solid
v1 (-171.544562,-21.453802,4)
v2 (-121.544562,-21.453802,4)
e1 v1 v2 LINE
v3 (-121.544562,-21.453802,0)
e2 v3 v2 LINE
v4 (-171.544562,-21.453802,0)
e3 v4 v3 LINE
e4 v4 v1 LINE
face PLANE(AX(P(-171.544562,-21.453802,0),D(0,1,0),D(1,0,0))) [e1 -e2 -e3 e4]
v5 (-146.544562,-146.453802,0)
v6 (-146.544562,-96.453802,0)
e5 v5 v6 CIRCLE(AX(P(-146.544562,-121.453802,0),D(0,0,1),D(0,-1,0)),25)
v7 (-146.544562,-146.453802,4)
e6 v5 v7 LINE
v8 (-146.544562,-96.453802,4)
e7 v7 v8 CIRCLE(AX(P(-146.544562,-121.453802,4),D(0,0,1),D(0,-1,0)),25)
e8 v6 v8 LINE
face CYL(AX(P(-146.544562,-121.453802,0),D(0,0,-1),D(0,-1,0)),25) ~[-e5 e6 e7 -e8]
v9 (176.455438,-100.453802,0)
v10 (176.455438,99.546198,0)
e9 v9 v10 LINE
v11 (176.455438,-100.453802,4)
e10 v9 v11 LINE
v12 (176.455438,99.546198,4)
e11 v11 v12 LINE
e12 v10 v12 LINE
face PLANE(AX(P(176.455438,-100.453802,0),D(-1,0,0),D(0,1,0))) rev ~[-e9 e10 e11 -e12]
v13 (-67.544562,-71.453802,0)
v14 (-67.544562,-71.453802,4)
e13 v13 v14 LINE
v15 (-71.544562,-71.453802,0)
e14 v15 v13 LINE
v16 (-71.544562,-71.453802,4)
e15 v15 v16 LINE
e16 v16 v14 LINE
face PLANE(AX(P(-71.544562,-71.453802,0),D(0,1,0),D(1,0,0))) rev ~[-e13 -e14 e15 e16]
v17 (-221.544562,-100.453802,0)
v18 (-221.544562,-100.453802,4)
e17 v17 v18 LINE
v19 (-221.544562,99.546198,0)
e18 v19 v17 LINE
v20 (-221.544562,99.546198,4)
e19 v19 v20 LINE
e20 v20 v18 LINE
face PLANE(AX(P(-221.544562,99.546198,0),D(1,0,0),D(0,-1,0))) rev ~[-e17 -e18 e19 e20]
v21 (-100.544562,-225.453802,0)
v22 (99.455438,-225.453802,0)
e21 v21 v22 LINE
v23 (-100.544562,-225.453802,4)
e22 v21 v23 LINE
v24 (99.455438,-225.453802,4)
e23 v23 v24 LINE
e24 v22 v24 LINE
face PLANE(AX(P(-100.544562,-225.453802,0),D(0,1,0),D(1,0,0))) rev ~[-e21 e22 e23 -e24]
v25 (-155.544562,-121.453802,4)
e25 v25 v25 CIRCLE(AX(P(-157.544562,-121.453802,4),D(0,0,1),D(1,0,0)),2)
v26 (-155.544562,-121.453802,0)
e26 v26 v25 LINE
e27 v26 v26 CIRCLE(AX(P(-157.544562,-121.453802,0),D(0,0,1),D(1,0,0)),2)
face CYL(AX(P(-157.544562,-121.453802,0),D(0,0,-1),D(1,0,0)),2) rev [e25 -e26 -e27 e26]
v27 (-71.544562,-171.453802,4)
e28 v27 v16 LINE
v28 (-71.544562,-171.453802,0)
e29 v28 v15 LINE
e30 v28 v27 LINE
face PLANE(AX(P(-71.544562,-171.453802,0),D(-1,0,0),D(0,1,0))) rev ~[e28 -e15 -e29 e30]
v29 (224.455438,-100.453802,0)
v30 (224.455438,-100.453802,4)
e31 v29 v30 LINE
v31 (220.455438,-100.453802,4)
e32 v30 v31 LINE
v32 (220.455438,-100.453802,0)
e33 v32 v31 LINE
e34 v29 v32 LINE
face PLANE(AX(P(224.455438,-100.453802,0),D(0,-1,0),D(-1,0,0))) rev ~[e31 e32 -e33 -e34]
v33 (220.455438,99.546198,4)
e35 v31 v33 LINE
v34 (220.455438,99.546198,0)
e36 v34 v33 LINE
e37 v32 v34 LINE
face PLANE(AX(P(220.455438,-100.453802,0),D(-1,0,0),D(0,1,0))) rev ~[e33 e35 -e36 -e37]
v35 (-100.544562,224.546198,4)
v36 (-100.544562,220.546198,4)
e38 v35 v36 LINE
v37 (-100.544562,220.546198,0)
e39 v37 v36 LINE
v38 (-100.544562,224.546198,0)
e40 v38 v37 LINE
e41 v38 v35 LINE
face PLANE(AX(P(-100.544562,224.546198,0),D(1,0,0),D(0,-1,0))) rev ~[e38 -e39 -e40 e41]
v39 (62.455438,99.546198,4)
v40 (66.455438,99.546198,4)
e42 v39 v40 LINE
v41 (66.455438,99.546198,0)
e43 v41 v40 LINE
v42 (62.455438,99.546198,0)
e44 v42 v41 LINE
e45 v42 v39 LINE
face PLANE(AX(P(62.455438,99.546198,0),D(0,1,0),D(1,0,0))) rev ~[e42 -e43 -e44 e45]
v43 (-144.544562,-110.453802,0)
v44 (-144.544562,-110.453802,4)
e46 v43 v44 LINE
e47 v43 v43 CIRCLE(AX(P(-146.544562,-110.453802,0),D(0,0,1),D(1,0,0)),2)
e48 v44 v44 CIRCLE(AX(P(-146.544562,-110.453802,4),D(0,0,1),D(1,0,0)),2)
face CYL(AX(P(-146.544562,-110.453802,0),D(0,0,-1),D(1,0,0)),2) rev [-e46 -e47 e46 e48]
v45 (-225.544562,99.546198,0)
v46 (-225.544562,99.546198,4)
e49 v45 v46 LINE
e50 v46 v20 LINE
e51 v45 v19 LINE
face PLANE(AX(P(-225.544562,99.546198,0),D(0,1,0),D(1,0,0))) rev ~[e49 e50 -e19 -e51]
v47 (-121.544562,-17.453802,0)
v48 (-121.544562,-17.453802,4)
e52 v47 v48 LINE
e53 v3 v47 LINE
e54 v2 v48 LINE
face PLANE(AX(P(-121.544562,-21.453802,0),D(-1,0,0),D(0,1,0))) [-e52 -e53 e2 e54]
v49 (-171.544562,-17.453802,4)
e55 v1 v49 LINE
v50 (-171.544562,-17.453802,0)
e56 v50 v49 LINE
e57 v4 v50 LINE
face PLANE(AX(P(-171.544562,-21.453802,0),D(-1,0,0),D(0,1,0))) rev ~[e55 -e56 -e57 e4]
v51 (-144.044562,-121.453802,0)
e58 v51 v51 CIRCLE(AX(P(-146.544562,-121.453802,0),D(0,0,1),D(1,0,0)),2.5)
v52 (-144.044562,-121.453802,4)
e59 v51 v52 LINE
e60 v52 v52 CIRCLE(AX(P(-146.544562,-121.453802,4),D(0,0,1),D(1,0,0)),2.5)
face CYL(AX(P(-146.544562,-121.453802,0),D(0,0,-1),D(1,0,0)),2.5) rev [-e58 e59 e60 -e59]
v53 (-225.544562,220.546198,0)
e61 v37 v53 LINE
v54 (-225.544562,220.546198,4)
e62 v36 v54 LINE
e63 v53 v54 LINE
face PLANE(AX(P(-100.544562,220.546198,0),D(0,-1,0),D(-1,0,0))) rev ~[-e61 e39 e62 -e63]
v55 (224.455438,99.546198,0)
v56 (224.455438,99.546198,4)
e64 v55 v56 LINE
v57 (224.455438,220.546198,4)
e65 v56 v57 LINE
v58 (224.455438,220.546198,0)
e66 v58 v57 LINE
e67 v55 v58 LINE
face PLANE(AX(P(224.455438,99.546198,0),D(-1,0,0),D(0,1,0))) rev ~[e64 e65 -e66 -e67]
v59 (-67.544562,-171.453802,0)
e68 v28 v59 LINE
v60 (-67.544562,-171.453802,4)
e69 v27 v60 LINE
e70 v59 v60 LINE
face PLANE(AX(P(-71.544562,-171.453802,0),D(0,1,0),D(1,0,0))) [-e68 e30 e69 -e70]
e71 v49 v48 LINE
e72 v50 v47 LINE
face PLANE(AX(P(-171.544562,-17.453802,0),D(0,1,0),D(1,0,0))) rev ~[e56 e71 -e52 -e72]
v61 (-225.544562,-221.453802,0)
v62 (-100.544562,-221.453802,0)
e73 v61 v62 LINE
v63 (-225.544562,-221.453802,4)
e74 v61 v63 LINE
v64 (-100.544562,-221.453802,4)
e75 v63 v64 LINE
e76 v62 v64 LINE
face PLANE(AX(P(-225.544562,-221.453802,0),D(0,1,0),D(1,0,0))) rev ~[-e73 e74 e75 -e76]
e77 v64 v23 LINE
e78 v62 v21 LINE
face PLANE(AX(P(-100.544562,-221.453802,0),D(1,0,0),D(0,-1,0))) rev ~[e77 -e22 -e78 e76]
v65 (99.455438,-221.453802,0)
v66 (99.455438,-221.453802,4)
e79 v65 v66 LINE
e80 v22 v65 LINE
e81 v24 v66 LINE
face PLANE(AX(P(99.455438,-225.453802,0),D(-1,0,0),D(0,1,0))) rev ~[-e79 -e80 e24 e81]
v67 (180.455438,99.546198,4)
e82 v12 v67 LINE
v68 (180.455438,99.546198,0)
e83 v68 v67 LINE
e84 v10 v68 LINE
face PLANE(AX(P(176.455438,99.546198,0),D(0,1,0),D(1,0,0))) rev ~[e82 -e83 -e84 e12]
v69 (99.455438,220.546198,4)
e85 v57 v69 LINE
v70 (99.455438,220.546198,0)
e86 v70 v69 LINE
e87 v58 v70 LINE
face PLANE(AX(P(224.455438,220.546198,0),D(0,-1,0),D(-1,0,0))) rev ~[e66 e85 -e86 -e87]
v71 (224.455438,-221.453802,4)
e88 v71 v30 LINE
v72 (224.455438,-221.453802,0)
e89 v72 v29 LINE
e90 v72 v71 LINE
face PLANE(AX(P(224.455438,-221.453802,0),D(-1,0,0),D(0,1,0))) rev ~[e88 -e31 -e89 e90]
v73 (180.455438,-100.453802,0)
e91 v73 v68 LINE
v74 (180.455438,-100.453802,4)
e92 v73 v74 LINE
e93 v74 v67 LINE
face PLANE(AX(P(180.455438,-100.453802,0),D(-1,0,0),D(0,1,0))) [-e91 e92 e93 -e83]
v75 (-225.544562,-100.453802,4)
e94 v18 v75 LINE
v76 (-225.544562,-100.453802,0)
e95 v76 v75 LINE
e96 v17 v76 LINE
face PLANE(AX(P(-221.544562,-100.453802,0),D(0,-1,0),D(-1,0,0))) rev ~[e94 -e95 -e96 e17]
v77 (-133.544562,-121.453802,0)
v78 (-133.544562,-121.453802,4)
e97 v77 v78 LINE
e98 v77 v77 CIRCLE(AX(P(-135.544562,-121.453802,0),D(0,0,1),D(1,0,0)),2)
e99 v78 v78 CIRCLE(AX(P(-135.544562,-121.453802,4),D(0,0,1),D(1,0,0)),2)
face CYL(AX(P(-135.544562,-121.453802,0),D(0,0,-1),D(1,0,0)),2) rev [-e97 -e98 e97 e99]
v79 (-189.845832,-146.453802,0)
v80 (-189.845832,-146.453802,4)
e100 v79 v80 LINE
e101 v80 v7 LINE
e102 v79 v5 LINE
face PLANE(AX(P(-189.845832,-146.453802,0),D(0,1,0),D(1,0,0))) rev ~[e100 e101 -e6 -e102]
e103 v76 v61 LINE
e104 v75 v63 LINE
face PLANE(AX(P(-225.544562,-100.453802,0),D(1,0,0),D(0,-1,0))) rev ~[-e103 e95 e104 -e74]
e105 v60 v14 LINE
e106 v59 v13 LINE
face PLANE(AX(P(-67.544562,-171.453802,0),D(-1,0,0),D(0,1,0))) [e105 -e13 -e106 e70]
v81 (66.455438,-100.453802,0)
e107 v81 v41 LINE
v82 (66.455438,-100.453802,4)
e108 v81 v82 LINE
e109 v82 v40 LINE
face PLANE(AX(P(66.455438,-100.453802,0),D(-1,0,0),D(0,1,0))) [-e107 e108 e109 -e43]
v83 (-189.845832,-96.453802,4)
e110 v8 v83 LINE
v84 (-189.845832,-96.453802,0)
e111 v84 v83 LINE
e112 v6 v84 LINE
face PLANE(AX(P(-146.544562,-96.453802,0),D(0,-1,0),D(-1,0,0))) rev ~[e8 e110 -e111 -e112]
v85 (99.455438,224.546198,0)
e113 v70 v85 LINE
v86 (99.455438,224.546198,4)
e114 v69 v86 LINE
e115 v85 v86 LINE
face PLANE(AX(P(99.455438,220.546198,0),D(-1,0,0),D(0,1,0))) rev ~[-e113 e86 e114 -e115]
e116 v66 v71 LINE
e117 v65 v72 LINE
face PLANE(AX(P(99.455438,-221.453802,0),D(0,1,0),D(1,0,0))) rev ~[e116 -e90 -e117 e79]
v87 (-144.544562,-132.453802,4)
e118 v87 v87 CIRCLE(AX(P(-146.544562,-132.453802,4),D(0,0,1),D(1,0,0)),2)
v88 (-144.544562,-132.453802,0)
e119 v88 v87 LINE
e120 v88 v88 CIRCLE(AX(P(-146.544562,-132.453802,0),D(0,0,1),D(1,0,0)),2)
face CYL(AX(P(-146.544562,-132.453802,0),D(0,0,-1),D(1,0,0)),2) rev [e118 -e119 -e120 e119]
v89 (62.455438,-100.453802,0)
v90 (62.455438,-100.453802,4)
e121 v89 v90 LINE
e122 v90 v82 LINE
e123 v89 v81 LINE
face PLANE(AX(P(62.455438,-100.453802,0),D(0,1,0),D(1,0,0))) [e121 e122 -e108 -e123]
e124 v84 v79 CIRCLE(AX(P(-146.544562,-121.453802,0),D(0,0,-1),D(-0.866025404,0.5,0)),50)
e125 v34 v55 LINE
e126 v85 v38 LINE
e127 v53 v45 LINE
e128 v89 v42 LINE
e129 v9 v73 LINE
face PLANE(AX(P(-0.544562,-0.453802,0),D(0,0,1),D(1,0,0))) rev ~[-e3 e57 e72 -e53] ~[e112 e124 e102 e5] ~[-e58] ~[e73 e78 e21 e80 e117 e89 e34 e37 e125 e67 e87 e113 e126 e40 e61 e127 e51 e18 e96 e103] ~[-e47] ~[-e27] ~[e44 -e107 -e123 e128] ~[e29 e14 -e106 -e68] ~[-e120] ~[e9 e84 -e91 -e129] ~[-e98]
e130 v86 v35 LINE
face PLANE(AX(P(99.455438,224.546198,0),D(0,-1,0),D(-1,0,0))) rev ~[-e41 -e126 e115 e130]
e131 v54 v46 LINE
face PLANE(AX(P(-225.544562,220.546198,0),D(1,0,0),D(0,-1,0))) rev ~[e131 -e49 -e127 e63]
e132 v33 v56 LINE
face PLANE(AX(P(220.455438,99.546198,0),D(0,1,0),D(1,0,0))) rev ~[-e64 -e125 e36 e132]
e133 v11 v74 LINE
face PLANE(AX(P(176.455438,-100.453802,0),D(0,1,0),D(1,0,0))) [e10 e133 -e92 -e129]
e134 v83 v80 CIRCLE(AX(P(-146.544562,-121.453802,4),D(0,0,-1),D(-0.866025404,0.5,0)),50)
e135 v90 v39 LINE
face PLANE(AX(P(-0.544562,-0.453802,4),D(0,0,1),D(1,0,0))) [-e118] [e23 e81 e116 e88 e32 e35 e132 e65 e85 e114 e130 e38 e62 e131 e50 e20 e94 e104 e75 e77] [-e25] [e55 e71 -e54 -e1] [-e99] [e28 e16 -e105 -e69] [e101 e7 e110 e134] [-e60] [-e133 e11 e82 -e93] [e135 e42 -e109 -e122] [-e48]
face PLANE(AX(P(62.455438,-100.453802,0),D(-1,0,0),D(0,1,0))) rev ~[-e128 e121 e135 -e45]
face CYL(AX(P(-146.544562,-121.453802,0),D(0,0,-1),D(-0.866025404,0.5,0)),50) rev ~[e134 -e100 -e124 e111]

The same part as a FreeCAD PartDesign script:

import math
import FreeCAD as App
import Part
import Sketcher


def add_polygon(sketch, points):
    """Adds a closed chain of lines whose ends are joined by coincident constraints."""
    first, n = sketch.GeometryCount, len(points)
    for a, b in zip(points, points[1:] + points[:1]):
        sketch.addGeometry(Part.LineSegment(App.Vector(*a, 0), App.Vector(*b, 0)), False)
    for i in range(n):
        sketch.addConstraint(Sketcher.Constraint("Coincident", first + i, 2, first + (i + 1) % n, 1))

doc = App.newDocument("Part")
body = doc.addObject("PartDesign::Body", "Body")

# Sketch on XY plane
sketch1 = doc.addObject("Sketcher::SketchObject", "Sketch")
body.addObject(sketch1)
sketch1.AttachmentSupport = (doc.XY_Plane, [""])
sketch1.MapMode = "FlatFace"
add_polygon(sketch1, [(-225.5, -221.5), (-100.5, -221.5), (-100.5, -225.5), (99.5, -225.5), (99.5, -221.5), (224.5, -221.5), (224.5, -100.5), (220.5, -100.5), (220.5, 99.5), (224.5, 99.5), (224.5, 220.5), (99.5, 220.5), (99.5, 224.5), (-100.5, 224.5), (-100.5, 220.5), (-225.5, 220.5), (-225.5, 99.5), (-221.5, 99.5), (-221.5, -100.5), (-225.5, -100.5)])  # lines 0-19
sketch1.addGeometry(Part.Circle(App.Vector(-146.5, -132.5, 0), App.Vector(0, 0, 1), 2), False)  # 20
sketch1.addGeometry(Part.Circle(App.Vector(-157.5, -121.5, 0), App.Vector(0, 0, 1), 2), False)  # 21
sketch1.addGeometry(Part.Circle(App.Vector(-146.5, -121.5, 0), App.Vector(0, 0, 1), 2.5), False)  # 22
sketch1.addGeometry(Part.Circle(App.Vector(-146.5, -110.5, 0), App.Vector(0, 0, 1), 2), False)  # 23
sketch1.addGeometry(Part.ArcOfCircle(Part.Circle(App.Vector(-146.5, -121.5, 0), App.Vector(0, 0, 1), 25), math.radians(-90), math.radians(90)), False)  # 24
sketch1.addGeometry(Part.LineSegment(App.Vector(-146.5, -96.5, 0), App.Vector(-189.8, -96.5, 0)), False)  # 25
sketch1.addGeometry(Part.ArcOfCircle(Part.Circle(App.Vector(-146.5, -121.5, 0), App.Vector(0, 0, 1), 50), math.radians(-150), math.radians(150)), False)  # 26
sketch1.addGeometry(Part.LineSegment(App.Vector(-189.8, -146.5, 0), App.Vector(-146.5, -146.5, 0)), False)  # 27
sketch1.addGeometry(Part.Circle(App.Vector(-135.5, -121.5, 0), App.Vector(0, 0, 1), 2), False)  # 28
add_polygon(sketch1, [(-67.5, -171.5), (-71.5, -171.5), (-71.5, -71.5), (-67.5, -71.5)])  # lines 29-32
add_polygon(sketch1, [(-121.5, -21.5), (-171.5, -21.5), (-171.5, -17.5), (-121.5, -17.5)])  # lines 33-36
add_polygon(sketch1, [(66.5, -100.5), (62.5, -100.5), (62.5, 99.5), (66.5, 99.5)])  # lines 37-40
add_polygon(sketch1, [(180.5, -100.5), (176.5, -100.5), (176.5, 99.5), (180.5, 99.5)])  # lines 41-44
sketch1.addConstraint(Sketcher.Constraint("Tangent", 24, 2, 25, 1))
sketch1.addConstraint(Sketcher.Constraint("Coincident", 25, 2, 26, 2))
sketch1.addConstraint(Sketcher.Constraint("Coincident", 26, 1, 27, 1))
sketch1.addConstraint(Sketcher.Constraint("Tangent", 27, 2, 24, 1))
sketch1.addConstraint(Sketcher.Constraint("Horizontal", 0))
sketch1.addConstraint(Sketcher.Constraint("Vertical", 1))
sketch1.addConstraint(Sketcher.Constraint("Horizontal", 2))
sketch1.addConstraint(Sketcher.Constraint("Vertical", 3))
sketch1.addConstraint(Sketcher.Constraint("Horizontal", 4))
sketch1.addConstraint(Sketcher.Constraint("Vertical", 5))
sketch1.addConstraint(Sketcher.Constraint("Horizontal", 6))
sketch1.addConstraint(Sketcher.Constraint("Vertical", 7))
sketch1.addConstraint(Sketcher.Constraint("Horizontal", 8))
sketch1.addConstraint(Sketcher.Constraint("Vertical", 9))
sketch1.addConstraint(Sketcher.Constraint("Horizontal", 10))
sketch1.addConstraint(Sketcher.Constraint("Vertical", 11))
sketch1.addConstraint(Sketcher.Constraint("Horizontal", 12))
sketch1.addConstraint(Sketcher.Constraint("Vertical", 13))
sketch1.addConstraint(Sketcher.Constraint("Horizontal", 14))
sketch1.addConstraint(Sketcher.Constraint("Vertical", 15))
sketch1.addConstraint(Sketcher.Constraint("Horizontal", 16))
sketch1.addConstraint(Sketcher.Constraint("Vertical", 17))
sketch1.addConstraint(Sketcher.Constraint("Horizontal", 18))
sketch1.addConstraint(Sketcher.Constraint("Vertical", 19))
sketch1.addConstraint(Sketcher.Constraint("Horizontal", 25))
sketch1.addConstraint(Sketcher.Constraint("Horizontal", 27))
sketch1.addConstraint(Sketcher.Constraint("Horizontal", 29))
sketch1.addConstraint(Sketcher.Constraint("Vertical", 30))
sketch1.addConstraint(Sketcher.Constraint("Horizontal", 31))
sketch1.addConstraint(Sketcher.Constraint("Vertical", 32))
sketch1.addConstraint(Sketcher.Constraint("Horizontal", 33))
sketch1.addConstraint(Sketcher.Constraint("Vertical", 34))
sketch1.addConstraint(Sketcher.Constraint("Horizontal", 35))
sketch1.addConstraint(Sketcher.Constraint("Vertical", 36))
sketch1.addConstraint(Sketcher.Constraint("Horizontal", 37))
sketch1.addConstraint(Sketcher.Constraint("Vertical", 38))
sketch1.addConstraint(Sketcher.Constraint("Horizontal", 39))
sketch1.addConstraint(Sketcher.Constraint("Vertical", 40))
sketch1.addConstraint(Sketcher.Constraint("Horizontal", 41))
sketch1.addConstraint(Sketcher.Constraint("Vertical", 42))
sketch1.addConstraint(Sketcher.Constraint("Horizontal", 43))
sketch1.addConstraint(Sketcher.Constraint("Vertical", 44))
sketch1.addConstraint(Sketcher.Constraint("Coincident", 24, 3, 22, 3))
sketch1.addConstraint(Sketcher.Constraint("Coincident", 26, 3, 22, 3))
sketch1.addConstraint(Sketcher.Constraint("Equal", 20, 21))
sketch1.addConstraint(Sketcher.Constraint("Equal", 21, 23))
sketch1.addConstraint(Sketcher.Constraint("Equal", 23, 28))
sketch1.addConstraint(Sketcher.Constraint("Horizontal", 21, 3, 22, 3))
sketch1.addConstraint(Sketcher.Constraint("Horizontal", 26, 3, 28, 3))
sketch1.addConstraint(Sketcher.Constraint("Horizontal", 0, 2, 3, 2))
sketch1.addConstraint(Sketcher.Constraint("Horizontal", 10, 2, 13, 2))
sketch1.addConstraint(Sketcher.Constraint("Horizontal", 8, 2, 15, 2))
sketch1.addConstraint(Sketcher.Constraint("Horizontal", 6, 2, 17, 2))
sketch1.addConstraint(Sketcher.Constraint("Horizontal", 18, 2, 37, 2))
sketch1.addConstraint(Sketcher.Constraint("Horizontal", 16, 2, 38, 2))
sketch1.addConstraint(Sketcher.Constraint("Horizontal", 40, 2, 41, 2))
sketch1.addConstraint(Sketcher.Constraint("Horizontal", 39, 2, 42, 2))
sketch1.addConstraint(Sketcher.Constraint("Vertical", 20, 3, 22, 3))
sketch1.addConstraint(Sketcher.Constraint("Vertical", 22, 3, 23, 3))
sketch1.addConstraint(Sketcher.Constraint("Vertical", 5, 2, 8, 2))
sketch1.addConstraint(Sketcher.Constraint("Vertical", 3, 2, 10, 2))
sketch1.addConstraint(Sketcher.Constraint("Vertical", 1, 2, 12, 2))
sketch1.addConstraint(Sketcher.Constraint("Vertical", 15, 2, 18, 2))
sketch1.addConstraint(Sketcher.Constraint("Equal", 0, 4))
sketch1.addConstraint(Sketcher.Constraint("Equal", 8, 16))
sketch1.addConstraint(Sketcher.Constraint("Equal", 18, 29))
sketch1.addConstraint(Sketcher.Constraint("Equal", 31, 37))
sketch1.addConstraint(Sketcher.Constraint("Equal", 39, 41))
sketch1.addConstraint(Sketcher.Constraint("Equal", 43, 1))
sketch1.addConstraint(Sketcher.Constraint("Equal", 12, 7))
sketch1.addConstraint(Sketcher.Constraint("Equal", 5, 9))
sketch1.addConstraint(Sketcher.Constraint("Equal", 3, 11))
sketch1.addConstraint(Sketcher.Constraint("Equal", 13, 34))
sketch1.addConstraint(Sketcher.Constraint("Diameter", 20, 4.0))
sketch1.addConstraint(Sketcher.Constraint("Diameter", 22, 5.0))
sketch1.addConstraint(Sketcher.Constraint("Radius", 24, 25.0))
sketch1.addConstraint(Sketcher.Constraint("Radius", 26, 50.0))
sketch1.addConstraint(Sketcher.Constraint("DistanceX", 0, 1, 0, 2, 125.0))
sketch1.addConstraint(Sketcher.Constraint("DistanceX", 2, 1, 2, 2, 200.0))
sketch1.addConstraint(Sketcher.Constraint("DistanceX", 6, 2, 6, 1, 4.0))
sketch1.addConstraint(Sketcher.Constraint("DistanceX", 33, 2, 33, 1, 50.0))
sketch1.addConstraint(Sketcher.Constraint("DistanceY", 5, 1, 5, 2, 121.0))
sketch1.addConstraint(Sketcher.Constraint("DistanceY", 30, 1, 30, 2, 100.0))
sketch1.addConstraint(Sketcher.Constraint("DistanceX", 21, 3, 20, 3, 11.0))
sketch1.addConstraint(Sketcher.Constraint("DistanceY", 20, 3, 21, 3, 11.0))
sketch1.addConstraint(Sketcher.Constraint("DistanceY", 22, 3, 23, 3, 11.0))
sketch1.addConstraint(Sketcher.Constraint("DistanceX", 22, 3, 28, 3, 11.0))
sketch1.addConstraint(Sketcher.Constraint("DistanceX", 20, 3, 0, 2, 46.0))
sketch1.addConstraint(Sketcher.Constraint("DistanceY", 0, 2, 20, 3, 89.0))
sketch1.addConstraint(Sketcher.Constraint("DistanceX", 0, 2, 29, 2, 29.0))
sketch1.addConstraint(Sketcher.Constraint("DistanceY", 0, 2, 29, 2, 50.0))
sketch1.addConstraint(Sketcher.Constraint("DistanceY", 25, 2, 33, 2, 75.0))
sketch1.addConstraint(Sketcher.Constraint("DistanceX", 33, 2, 24, 2, 25.0))
sketch1.addConstraint(Sketcher.Constraint("DistanceX", 37, 2, 3, 2, 37.0))
sketch1.addConstraint(Sketcher.Constraint("DistanceX", 41, 2, 6, 2, 44.0))
sketch1.addConstraint(Sketcher.Constraint("DistanceY", 20, 3, -1, 1, 132.453802))
sketch1.addConstraint(Sketcher.Constraint("DistanceX", 20, 3, -1, 1, 146.544562))
pad1 = doc.addObject("PartDesign::Pad", "Pad")
body.addObject(pad1)
pad1.Profile = sketch1
pad1.Length = 4

doc.recompute()
